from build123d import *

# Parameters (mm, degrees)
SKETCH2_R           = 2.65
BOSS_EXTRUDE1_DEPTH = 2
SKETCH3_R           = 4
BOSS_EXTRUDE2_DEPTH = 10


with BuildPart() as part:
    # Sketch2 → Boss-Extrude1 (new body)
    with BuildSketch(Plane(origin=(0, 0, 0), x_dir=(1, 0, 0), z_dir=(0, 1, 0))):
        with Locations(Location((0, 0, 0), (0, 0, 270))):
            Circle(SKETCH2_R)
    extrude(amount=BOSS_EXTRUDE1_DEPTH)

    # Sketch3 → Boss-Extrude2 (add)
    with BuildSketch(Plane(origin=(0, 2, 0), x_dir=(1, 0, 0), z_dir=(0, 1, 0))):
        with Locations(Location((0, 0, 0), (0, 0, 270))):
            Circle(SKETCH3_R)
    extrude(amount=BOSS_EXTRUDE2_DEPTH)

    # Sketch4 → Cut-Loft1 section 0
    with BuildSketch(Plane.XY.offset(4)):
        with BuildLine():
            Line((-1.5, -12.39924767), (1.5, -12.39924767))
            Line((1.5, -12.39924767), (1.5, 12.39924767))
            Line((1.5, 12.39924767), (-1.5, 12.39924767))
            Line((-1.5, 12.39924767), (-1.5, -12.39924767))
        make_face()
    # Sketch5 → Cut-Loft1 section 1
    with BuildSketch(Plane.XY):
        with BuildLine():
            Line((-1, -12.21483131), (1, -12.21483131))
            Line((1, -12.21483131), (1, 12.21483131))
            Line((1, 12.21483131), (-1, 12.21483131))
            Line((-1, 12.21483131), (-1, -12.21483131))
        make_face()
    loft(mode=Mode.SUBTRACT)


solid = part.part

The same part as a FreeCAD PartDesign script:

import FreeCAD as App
import Part
import Sketcher

V = App.Vector
Q = App.Units.Quantity


def add_polygon(sketch, points):
    """Adds a closed chain of lines whose ends are joined by coincident constraints."""
    first, n = sketch.GeometryCount, len(points)
    for a, b in zip(points, points[1:] + points[:1]):
        sketch.addGeometry(Part.LineSegment(App.Vector(*a, 0), App.Vector(*b, 0)), False)
    for i in range(n):
        sketch.addConstraint(Sketcher.Constraint("Coincident", first + i, 2, first + (i + 1) % n, 1))

doc = App.newDocument("Part")
body = doc.addObject("PartDesign::Body", "Body")

# Sketch on XZ plane
sketch1 = body.newObject("Sketcher::SketchObject", "Sketch")
sketch1.AttachmentSupport = (doc.getObject("XZ_Plane"), [""])
sketch1.MapMode = "FlatFace"
sketch1.addGeometry(Part.Circle(V(0, 0, 0), V(0, 0, 1), 2.6), False)
sketch1.addConstraint([
    Sketcher.Constraint("Coincident", 0, 3, -1, 1),
    Sketcher.Constraint("Diameter", 0, Q("5.3 mm")),
])
pad1 = body.newObject("PartDesign::Pad", "Pad")
pad1.Profile = sketch1
pad1.Length = 2
pad1.Reversed = True

# Sketch on XZ plane
sketch2 = body.newObject("Sketcher::SketchObject", "Sketch001")
sketch2.AttachmentSupport = (doc.getObject("XZ_Plane"), [""])
sketch2.MapMode = "FlatFace"
sketch2.AttachmentOffset = App.Placement(V(0, 0, -2), App.Rotation())
sketch2.addGeometry(Part.Circle(V(0, 0, 0), V(0, 0, 1), 4), False)
sketch2.addConstraint([
    Sketcher.Constraint("Coincident", 0, 3, -1, 1),
    Sketcher.Constraint("Diameter", 0, Q("8 mm")),
])
pad2 = body.newObject("PartDesign::Pad", "Pad001")
pad2.Profile = sketch2
pad2.Length = 10
pad2.Reversed = True

# Sketch on XY plane
sketch3 = body.newObject("Sketcher::SketchObject", "Sketch002")
sketch3.AttachmentSupport = (doc.getObject("XY_Plane"), [""])
sketch3.MapMode = "FlatFace"
sketch3.AttachmentOffset = App.Placement(V(0, 0, 4), App.Rotation())
add_polygon(sketch3, [(-1.5, -12.4), (1.5, -12.4), (1.5, 12.4), (-1.5, 12.4)])  # lines 0-3
sketch3.addConstraint([
    Sketcher.Constraint("Horizontal", 0),
    Sketcher.Constraint("Vertical", 1),
    Sketcher.Constraint("Horizontal", 2),
    Sketcher.Constraint("Vertical", 3),
    Sketcher.Constraint("Symmetric", 0, 2, 2, 2, -1, 1),
    Sketcher.Constraint("DistanceX", 0, 1, 0, 2, Q("3 mm")),
    Sketcher.Constraint("DistanceY", 1, 1, 1, 2, Q("24.798495 mm")),
])

# Sketch on XY plane
sketch4 = body.newObject("Sketcher::SketchObject", "Sketch003")
sketch4.AttachmentSupport = (doc.getObject("XY_Plane"), [""])
sketch4.MapMode = "FlatFace"
add_polygon(sketch4, [(-1, -12.2), (1, -12.2), (1, 12.2), (-1, 12.2)])  # lines 0-3
sketch4.addConstraint([
    Sketcher.Constraint("Horizontal", 0),
    Sketcher.Constraint("Vertical", 1),
    Sketcher.Constraint("Horizontal", 2),
    Sketcher.Constraint("Vertical", 3),
    Sketcher.Constraint("Symmetric", 0, 2, 2, 2, -1, 1),
    Sketcher.Constraint("DistanceX", 0, 1, 0, 2, Q("2 mm")),
    Sketcher.Constraint("DistanceY", 1, 1, 1, 2, Q("24.429663 mm")),
])

subtractiveloft = body.newObject("PartDesign::SubtractiveLoft", "SubtractiveLoft")
subtractiveloft.Profile = sketch3
subtractiveloft.Sections = [sketch4]

doc.recompute()
